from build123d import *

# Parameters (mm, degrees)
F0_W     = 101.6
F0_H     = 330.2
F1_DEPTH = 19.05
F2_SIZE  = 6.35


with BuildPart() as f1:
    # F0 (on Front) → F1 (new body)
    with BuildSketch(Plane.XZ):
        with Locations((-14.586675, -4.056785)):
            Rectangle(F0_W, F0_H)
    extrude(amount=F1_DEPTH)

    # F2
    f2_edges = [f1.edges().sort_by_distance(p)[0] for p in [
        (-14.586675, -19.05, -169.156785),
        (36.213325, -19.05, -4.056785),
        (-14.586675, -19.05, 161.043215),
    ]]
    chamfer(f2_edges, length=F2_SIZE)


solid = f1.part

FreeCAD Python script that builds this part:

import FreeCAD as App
import Part
import Sketcher

V = App.Vector
Q = App.Units.Quantity


def edges_at(feature, points):
    """Names of the edges that pass closest to the given points."""
    edges = feature.Shape.Edges
    near = lambda p: min(range(len(edges)), key=lambda i: edges[i].distToShape(Part.Vertex(*p))[0])
    return sorted({f"Edge{near(p) + 1}" for p in points})


def add_polygon(sketch, points):
    """Adds a closed chain of lines whose ends are joined by coincident constraints."""
    first, n = sketch.GeometryCount, len(points)
    for a, b in zip(points, points[1:] + points[:1]):
        sketch.addGeometry(Part.LineSegment(App.Vector(*a, 0), App.Vector(*b, 0)), False)
    for i in range(n):
        sketch.addConstraint(Sketcher.Constraint("Coincident", first + i, 2, first + (i + 1) % n, 1))

doc = App.newDocument("Part")
body = doc.addObject("PartDesign::Body", "Body")

# Sketch on XZ plane
sketch1 = body.newObject("Sketcher::SketchObject", "Sketch")
sketch1.AttachmentSupport = (doc.getObject("XZ_Plane"), [""])
sketch1.MapMode = "FlatFace"
add_polygon(sketch1, [(-65, 161), (-65, -169), (36, -169), (36, 161)])  # lines 0-3
sketch1.addConstraint([
    Sketcher.Constraint("Vertical", 0),
    Sketcher.Constraint("Horizontal", 1),
    Sketcher.Constraint("Vertical", 2),
    Sketcher.Constraint("Horizontal", 3),
    Sketcher.Constraint("DistanceX", 1, 1, 1, 2, Q("4 in")),
    Sketcher.Constraint("DistanceY", 0, 2, 0, 1, Q("13 in")),
    Sketcher.Constraint("DistanceX", 0, 2, -1, 1, Q("65.386675 mm")),
    Sketcher.Constraint("DistanceY", 0, 2, -1, 1, Q("169.156785 mm")),
])
pad1 = body.newObject("PartDesign::Pad", "Pad")
pad1.Profile = sketch1
pad1.Length = Q("0.75 in")
doc.recompute()

chamfer = body.newObject("PartDesign::Chamfer", "Chamfer")
chamfer.Base = (pad1, edges_at(pad1, [(-14.587, -19.05, -169.157), (36.213, -19.05, -4.057), (-14.587, -19.05, 161.043)]))
chamfer.Size = Q("0.25 in")

doc.recompute()
